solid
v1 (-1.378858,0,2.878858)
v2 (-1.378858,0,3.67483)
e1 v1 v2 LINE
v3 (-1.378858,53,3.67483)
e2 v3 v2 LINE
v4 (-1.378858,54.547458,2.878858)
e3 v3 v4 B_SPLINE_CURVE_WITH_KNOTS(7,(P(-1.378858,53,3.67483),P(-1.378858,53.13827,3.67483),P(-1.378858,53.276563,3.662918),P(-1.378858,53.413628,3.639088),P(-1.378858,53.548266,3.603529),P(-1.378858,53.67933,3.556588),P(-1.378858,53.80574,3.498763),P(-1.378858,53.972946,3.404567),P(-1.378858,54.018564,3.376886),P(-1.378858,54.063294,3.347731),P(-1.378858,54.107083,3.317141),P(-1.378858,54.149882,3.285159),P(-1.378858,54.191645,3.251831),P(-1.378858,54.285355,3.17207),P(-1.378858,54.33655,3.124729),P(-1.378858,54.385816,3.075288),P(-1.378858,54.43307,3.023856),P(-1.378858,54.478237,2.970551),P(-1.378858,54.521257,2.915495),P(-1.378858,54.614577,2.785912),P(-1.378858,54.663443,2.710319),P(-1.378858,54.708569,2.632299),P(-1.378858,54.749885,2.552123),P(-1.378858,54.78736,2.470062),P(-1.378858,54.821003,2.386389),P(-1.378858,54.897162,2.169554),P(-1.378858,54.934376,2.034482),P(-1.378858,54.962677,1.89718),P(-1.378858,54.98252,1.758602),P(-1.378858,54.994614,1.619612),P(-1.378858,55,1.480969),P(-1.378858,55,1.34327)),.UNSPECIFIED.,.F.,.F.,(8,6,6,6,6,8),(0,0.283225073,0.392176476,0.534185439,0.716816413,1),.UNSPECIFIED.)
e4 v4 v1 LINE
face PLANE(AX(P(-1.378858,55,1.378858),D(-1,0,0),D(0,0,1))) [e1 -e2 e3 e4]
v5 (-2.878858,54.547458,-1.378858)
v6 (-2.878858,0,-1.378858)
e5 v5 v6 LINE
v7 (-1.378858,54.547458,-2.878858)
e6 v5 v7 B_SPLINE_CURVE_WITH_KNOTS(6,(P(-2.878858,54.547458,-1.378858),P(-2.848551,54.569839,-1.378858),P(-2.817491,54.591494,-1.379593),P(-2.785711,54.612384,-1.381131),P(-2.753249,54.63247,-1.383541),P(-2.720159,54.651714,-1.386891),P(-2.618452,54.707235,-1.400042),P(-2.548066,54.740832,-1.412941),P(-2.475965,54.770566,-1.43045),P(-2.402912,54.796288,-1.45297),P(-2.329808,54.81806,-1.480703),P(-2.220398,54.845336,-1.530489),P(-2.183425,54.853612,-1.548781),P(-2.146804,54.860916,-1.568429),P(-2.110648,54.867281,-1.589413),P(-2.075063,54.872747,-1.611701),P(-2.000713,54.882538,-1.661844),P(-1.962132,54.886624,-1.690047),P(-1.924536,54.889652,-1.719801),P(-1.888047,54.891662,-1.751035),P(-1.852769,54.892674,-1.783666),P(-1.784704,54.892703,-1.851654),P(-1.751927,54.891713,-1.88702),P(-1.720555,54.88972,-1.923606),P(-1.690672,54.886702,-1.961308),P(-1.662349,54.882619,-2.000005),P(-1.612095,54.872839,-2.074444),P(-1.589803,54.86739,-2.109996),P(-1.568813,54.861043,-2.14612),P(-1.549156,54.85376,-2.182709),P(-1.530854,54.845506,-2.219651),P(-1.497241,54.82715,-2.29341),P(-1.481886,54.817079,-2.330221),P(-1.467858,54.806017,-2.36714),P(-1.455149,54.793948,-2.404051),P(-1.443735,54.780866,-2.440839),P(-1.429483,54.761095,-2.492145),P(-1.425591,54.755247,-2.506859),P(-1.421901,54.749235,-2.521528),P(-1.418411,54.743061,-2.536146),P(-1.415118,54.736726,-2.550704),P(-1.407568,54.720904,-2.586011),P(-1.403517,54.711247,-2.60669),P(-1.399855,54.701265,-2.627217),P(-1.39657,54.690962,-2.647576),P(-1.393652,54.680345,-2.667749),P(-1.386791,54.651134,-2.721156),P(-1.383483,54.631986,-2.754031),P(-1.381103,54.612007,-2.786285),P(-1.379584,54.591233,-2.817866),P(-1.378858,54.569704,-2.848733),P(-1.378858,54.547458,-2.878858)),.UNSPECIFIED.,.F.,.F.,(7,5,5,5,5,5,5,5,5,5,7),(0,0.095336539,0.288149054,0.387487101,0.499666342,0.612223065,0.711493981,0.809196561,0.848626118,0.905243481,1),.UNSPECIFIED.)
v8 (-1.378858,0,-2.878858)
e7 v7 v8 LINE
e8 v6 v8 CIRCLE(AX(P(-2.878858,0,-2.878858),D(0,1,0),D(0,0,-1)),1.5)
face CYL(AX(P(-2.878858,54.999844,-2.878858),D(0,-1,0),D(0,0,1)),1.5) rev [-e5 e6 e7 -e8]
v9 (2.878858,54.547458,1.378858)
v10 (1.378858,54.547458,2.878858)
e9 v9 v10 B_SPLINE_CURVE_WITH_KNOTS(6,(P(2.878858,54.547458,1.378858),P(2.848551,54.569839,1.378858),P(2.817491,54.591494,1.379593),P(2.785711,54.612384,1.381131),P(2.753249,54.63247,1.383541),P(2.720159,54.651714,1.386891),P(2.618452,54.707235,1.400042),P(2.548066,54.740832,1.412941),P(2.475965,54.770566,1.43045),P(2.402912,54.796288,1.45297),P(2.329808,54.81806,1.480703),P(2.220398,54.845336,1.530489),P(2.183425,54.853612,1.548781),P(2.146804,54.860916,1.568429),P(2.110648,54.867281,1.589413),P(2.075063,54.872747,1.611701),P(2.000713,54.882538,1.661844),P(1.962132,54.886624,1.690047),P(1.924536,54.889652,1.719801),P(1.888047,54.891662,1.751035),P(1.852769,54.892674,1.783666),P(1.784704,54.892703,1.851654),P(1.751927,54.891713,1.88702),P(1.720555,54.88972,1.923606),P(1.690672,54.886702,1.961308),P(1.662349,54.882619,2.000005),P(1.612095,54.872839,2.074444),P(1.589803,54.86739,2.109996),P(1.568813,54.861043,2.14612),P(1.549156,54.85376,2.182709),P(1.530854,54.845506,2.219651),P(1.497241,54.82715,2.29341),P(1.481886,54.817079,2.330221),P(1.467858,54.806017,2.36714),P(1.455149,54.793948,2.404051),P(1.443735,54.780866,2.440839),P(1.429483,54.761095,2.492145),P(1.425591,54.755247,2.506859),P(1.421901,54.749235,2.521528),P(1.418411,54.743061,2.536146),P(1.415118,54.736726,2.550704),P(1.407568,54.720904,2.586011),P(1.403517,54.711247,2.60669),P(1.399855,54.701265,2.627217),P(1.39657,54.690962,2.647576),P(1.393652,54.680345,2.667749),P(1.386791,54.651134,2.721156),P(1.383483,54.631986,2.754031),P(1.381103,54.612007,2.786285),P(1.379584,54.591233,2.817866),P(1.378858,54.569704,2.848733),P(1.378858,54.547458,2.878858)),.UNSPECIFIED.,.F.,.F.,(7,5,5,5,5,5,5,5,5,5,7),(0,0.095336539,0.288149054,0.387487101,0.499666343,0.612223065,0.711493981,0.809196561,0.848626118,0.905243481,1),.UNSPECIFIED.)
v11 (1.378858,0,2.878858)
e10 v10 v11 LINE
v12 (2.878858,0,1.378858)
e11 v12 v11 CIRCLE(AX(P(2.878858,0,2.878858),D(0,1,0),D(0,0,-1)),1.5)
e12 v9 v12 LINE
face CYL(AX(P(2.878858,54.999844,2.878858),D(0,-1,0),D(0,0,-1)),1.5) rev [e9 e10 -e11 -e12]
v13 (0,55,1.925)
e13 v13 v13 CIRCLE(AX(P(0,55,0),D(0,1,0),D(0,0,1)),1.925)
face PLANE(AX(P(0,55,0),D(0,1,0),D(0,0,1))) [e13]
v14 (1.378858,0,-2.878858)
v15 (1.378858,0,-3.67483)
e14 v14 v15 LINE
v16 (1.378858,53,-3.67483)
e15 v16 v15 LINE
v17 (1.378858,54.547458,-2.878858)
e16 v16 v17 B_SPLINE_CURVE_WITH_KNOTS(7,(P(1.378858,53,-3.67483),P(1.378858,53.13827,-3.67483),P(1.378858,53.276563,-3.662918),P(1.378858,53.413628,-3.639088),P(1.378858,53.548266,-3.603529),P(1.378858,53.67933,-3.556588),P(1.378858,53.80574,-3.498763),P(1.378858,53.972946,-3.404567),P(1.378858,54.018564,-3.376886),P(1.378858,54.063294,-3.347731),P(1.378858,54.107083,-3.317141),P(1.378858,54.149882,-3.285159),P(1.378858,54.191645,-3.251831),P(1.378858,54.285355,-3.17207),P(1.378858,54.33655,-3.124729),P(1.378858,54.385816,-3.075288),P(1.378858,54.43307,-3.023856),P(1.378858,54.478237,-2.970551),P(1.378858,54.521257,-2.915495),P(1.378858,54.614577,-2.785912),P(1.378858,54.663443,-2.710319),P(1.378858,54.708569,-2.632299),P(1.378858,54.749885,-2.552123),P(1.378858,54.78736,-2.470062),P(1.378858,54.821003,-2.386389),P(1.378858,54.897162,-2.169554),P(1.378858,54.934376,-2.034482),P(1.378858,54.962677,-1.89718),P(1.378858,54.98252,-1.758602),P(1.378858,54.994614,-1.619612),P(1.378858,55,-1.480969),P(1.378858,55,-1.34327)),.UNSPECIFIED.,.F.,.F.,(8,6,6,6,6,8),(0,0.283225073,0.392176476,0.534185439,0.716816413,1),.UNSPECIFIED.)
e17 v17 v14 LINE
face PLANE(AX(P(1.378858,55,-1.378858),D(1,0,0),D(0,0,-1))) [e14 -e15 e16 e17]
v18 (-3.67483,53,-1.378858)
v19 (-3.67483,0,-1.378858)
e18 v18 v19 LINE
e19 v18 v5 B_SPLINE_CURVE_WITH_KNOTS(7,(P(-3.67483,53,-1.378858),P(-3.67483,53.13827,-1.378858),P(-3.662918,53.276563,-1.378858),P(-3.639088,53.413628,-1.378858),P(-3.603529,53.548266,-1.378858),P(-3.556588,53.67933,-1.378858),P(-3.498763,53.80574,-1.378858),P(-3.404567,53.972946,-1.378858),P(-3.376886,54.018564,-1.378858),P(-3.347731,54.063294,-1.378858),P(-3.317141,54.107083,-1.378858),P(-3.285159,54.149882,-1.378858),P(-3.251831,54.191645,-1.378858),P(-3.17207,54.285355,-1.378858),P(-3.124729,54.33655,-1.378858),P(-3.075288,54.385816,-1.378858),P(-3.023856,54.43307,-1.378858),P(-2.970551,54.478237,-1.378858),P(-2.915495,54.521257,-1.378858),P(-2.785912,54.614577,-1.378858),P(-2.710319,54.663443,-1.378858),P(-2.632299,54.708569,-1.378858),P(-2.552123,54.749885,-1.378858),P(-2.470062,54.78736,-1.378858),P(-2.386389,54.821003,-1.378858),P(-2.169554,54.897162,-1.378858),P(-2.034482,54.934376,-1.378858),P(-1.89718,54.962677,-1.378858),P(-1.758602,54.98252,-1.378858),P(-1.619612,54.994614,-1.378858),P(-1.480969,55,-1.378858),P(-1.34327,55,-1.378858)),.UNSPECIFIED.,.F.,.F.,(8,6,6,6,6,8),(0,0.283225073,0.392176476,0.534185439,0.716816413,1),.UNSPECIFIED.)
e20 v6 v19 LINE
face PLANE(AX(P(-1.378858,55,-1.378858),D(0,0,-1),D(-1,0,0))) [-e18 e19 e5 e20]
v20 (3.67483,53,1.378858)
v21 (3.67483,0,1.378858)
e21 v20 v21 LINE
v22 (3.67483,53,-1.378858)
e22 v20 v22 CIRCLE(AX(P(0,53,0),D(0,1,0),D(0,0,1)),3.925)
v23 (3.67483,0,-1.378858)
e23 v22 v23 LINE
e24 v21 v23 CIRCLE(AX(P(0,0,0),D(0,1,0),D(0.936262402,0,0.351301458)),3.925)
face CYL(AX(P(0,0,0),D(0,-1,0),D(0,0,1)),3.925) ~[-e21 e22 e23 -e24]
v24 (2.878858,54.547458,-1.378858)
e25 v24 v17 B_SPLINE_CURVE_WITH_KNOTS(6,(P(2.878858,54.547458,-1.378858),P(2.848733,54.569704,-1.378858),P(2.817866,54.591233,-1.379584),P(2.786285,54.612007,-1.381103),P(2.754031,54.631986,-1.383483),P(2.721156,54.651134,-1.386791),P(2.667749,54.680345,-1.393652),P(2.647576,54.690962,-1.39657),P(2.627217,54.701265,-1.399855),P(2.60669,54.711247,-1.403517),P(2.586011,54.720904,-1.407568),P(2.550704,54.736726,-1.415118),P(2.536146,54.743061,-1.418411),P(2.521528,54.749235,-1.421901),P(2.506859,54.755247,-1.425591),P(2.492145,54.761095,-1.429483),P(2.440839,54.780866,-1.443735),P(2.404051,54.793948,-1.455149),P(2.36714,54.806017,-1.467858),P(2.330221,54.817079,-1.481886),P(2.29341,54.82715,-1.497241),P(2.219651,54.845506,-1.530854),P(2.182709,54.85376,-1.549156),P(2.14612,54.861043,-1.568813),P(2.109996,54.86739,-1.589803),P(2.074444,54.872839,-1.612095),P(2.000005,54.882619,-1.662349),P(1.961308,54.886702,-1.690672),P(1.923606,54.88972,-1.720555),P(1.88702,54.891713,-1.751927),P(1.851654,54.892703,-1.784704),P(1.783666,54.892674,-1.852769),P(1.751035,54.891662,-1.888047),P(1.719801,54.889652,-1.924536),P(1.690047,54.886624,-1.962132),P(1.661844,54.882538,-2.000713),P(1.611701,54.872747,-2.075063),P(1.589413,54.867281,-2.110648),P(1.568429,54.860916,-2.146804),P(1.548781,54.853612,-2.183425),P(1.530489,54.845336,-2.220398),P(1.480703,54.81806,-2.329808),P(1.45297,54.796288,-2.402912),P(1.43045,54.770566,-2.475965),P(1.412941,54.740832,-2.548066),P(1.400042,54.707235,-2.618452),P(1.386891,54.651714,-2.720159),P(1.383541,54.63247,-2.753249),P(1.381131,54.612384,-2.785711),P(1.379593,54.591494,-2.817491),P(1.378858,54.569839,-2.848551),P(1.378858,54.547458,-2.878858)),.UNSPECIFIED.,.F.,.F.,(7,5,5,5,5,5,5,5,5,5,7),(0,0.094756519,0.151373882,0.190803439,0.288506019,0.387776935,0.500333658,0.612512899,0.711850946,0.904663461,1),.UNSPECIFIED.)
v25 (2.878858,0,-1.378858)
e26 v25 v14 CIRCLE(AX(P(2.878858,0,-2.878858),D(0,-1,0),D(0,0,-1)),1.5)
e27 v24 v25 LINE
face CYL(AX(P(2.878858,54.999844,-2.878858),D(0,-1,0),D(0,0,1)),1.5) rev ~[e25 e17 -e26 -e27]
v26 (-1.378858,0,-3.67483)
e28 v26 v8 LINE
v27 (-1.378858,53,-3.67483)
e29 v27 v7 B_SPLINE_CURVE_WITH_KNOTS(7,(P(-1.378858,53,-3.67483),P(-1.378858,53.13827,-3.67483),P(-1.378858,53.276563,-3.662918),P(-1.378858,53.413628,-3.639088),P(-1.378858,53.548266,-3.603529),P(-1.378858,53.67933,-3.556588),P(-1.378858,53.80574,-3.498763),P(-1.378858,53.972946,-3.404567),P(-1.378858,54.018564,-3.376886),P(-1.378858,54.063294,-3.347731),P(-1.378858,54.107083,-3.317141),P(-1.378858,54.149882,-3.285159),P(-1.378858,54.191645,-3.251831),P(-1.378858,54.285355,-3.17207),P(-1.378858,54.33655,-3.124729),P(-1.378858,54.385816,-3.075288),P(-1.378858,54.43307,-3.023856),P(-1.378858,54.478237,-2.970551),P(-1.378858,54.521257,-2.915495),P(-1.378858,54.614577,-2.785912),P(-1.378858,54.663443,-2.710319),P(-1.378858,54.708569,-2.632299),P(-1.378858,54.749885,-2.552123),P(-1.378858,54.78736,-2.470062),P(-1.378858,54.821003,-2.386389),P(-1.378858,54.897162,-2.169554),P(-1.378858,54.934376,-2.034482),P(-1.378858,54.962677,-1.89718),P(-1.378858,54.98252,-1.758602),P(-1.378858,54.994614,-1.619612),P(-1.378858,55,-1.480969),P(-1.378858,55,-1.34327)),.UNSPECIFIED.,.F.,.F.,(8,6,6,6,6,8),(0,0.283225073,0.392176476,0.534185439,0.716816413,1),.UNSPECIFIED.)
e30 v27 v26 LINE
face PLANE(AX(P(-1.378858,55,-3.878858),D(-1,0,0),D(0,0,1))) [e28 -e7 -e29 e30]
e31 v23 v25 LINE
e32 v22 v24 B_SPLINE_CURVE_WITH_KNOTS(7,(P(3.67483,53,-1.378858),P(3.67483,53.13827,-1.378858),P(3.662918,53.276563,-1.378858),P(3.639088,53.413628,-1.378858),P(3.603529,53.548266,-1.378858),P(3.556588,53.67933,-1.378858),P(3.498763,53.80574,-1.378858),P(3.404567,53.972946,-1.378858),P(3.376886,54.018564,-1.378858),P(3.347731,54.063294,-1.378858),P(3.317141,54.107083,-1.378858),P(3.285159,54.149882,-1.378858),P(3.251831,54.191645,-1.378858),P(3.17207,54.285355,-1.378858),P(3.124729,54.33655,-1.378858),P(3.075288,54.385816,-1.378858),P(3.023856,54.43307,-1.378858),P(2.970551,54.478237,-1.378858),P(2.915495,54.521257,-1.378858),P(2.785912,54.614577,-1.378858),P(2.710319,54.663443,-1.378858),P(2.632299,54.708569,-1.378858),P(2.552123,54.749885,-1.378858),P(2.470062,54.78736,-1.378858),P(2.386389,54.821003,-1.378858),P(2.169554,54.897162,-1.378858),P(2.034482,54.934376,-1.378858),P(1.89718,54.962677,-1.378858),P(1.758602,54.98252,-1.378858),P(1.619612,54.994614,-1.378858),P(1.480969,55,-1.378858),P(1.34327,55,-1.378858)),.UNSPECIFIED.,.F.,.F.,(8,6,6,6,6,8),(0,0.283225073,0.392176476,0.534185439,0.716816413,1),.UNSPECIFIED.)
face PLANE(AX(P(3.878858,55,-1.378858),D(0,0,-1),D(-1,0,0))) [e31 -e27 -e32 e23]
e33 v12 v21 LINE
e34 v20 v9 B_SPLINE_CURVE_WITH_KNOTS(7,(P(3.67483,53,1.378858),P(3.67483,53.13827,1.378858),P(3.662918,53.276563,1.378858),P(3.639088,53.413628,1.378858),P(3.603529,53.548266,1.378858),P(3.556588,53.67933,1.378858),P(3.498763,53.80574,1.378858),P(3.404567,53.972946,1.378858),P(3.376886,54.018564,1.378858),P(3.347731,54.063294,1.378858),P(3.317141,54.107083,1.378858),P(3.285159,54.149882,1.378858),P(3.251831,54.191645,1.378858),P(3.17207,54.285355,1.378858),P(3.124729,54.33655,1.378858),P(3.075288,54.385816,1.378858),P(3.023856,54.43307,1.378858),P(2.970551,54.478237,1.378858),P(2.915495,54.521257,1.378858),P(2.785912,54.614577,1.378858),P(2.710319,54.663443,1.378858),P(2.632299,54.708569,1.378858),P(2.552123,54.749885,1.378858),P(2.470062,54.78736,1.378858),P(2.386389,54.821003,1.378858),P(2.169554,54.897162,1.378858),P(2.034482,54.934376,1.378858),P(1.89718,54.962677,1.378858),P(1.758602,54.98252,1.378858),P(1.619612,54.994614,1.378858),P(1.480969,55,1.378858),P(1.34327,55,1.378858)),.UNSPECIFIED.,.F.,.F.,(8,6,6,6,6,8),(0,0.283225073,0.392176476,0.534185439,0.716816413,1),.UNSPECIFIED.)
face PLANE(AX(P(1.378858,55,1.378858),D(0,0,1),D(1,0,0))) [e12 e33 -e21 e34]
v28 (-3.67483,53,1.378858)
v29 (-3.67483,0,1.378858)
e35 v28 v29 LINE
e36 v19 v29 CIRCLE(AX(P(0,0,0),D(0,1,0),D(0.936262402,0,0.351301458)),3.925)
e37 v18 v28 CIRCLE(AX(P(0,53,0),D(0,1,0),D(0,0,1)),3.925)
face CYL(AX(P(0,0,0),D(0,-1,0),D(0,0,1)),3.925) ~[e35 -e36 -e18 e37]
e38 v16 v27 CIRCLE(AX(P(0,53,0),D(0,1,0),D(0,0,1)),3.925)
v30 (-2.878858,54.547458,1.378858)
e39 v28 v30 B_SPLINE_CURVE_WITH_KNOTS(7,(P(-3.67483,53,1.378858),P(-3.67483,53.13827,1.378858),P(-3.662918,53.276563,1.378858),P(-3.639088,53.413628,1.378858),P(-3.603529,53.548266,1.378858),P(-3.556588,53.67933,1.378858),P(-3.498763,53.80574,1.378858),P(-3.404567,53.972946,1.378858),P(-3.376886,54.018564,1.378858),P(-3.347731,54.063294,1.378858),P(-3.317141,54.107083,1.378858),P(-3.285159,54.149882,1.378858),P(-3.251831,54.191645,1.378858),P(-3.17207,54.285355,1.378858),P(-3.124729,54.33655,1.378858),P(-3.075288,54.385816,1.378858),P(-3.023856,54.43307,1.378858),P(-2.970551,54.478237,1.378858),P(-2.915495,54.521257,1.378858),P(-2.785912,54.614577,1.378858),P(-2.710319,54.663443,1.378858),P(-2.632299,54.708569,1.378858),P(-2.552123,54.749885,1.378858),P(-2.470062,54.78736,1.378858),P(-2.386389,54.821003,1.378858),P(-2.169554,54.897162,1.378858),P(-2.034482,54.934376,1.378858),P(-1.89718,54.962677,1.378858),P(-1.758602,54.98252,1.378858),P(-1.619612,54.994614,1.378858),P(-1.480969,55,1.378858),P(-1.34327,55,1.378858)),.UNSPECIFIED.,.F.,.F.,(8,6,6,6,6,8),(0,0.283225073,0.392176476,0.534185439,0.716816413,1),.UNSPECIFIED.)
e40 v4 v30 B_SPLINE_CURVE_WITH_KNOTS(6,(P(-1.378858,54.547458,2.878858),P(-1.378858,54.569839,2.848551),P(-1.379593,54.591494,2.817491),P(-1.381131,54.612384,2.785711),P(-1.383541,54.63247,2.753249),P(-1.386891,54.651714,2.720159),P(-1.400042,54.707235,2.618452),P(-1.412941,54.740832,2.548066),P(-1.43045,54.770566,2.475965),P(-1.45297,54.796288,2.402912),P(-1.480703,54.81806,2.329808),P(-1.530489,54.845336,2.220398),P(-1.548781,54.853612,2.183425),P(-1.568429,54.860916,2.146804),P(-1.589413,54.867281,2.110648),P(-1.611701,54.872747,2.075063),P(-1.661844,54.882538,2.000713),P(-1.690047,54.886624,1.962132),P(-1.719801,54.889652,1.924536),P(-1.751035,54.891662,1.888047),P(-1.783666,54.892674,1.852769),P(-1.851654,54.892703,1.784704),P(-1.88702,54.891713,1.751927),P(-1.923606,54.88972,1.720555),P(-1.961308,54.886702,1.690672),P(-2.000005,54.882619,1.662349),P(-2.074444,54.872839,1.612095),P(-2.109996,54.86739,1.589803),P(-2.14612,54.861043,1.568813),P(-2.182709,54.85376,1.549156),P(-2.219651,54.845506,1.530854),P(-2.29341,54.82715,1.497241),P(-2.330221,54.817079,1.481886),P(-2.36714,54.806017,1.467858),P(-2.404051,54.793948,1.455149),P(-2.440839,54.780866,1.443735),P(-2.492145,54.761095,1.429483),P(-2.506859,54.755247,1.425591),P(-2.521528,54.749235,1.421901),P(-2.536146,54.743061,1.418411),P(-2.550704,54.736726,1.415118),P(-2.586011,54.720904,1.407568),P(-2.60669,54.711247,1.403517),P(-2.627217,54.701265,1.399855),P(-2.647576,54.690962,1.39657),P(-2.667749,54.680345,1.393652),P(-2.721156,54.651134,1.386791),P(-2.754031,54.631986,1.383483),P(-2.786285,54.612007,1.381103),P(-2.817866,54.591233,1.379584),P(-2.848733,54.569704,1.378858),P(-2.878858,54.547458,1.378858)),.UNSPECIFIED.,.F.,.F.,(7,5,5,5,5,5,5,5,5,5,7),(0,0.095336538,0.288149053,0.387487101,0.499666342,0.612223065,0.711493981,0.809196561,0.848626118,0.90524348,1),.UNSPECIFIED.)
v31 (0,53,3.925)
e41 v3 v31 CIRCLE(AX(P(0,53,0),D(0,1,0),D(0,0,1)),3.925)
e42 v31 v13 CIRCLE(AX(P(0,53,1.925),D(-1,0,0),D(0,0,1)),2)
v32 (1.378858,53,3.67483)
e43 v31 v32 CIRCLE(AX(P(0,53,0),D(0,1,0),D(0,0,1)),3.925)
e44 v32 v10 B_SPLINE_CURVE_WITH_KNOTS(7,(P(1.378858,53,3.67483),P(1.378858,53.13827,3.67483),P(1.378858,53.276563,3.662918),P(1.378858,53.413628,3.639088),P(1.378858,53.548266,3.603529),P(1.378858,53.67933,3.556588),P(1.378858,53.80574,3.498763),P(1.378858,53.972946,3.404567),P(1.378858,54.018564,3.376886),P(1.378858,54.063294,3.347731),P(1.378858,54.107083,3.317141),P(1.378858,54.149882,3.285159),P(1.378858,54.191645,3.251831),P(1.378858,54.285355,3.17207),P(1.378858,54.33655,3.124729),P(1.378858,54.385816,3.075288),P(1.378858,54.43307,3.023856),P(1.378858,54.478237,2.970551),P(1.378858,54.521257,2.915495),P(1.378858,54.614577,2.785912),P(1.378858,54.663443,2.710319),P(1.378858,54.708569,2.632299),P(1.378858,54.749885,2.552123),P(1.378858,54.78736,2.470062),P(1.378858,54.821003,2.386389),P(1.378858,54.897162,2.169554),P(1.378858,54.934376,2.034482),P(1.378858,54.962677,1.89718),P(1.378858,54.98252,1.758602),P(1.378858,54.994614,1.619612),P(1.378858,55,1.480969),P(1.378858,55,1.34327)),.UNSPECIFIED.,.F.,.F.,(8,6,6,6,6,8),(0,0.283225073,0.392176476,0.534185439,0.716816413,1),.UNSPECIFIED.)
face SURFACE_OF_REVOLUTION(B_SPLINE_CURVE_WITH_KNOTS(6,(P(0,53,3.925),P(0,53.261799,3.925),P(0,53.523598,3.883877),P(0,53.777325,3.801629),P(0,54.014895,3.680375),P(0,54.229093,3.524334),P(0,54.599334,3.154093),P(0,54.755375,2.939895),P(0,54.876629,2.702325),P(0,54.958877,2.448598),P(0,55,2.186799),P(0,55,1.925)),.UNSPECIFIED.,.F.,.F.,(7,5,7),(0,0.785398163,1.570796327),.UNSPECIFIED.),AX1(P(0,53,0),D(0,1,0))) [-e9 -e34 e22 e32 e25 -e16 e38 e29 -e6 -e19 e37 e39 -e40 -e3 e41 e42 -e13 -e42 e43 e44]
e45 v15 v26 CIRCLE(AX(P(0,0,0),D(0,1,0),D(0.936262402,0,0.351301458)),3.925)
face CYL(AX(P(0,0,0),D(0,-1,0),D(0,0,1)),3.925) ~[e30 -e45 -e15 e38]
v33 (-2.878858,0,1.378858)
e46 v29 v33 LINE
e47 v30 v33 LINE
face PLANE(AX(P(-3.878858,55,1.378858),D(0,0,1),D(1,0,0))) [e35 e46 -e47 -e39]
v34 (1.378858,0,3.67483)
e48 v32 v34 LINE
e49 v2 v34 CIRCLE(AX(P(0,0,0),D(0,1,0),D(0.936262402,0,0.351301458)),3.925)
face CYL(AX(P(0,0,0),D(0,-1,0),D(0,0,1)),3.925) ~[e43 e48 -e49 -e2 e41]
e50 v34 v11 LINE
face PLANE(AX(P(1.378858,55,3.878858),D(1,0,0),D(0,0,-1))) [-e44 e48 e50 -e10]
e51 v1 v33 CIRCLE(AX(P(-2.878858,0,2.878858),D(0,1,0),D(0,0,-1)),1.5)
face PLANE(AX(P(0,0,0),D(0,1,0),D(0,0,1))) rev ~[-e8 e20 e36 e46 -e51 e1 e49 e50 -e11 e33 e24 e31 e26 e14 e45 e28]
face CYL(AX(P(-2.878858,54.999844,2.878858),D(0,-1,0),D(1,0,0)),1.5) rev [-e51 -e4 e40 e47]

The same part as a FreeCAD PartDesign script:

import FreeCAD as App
import Part
import Sketcher


def edges_at(feature, points):
    """Names of the edges that pass closest to the given points."""
    edges = feature.Shape.Edges
    near = lambda p: min(range(len(edges)), key=lambda i: edges[i].distToShape(Part.Vertex(*p))[0])
    return sorted({f"Edge{near(p) + 1}" for p in points})

doc = App.newDocument("Part")
params = doc.addObject("Spreadsheet::Sheet", "Params")
for row, (alias, value) in enumerate([
    ("sketch1_diameter", "7.85 mm"),
    ("pad1_length", "55 mm"),
    ("fillet_radius", "2 mm"),
    ("sketch2_width", "2.5 mm"),
    ("fillet2_radius", "1.5 mm"),
], start=1):
    params.set(f"A{row}", alias)
    params.set(f"B{row}", "=" + value)
    params.setAlias(f"B{row}", alias)

body = doc.addObject("PartDesign::Body", "Body")

# Sketch on XZ plane
sketch1 = body.newObject("Sketcher::SketchObject", "Sketch")
sketch1.AttachmentSupport = (doc.getObject("XZ_Plane"), [""])
sketch1.MapMode = "FlatFace"
sketch1.addGeometry(Part.Circle(App.Vector(0, 0, 0), App.Vector(0, 0, 1), 3.9), False)
sketch1.addConstraint(Sketcher.Constraint("Coincident", 0, 3, -1, 1))
sketch1.addConstraint(Sketcher.Constraint("Diameter", 0, 7.85))
sketch1.setExpression("Constraints[1]", "Params.sketch1_diameter")
pad1 = body.newObject("PartDesign::Pad", "Pad")
pad1.Profile = sketch1
pad1.setExpression("Length", "Params.pad1_length")
pad1.Reversed = True
doc.recompute()

fillet = body.newObject("PartDesign::Fillet", "Fillet")
fillet.Base = (pad1, edges_at(pad1, [(0, 55, -3.925)]))
fillet.setExpression("Radius", "Params.fillet_radius")

# Sketch on XZ plane
sketch2 = body.newObject("Sketcher::SketchObject", "Sketch001")
sketch2.AttachmentSupport = (doc.getObject("XZ_Plane"), [""])
sketch2.MapMode = "FlatFace"
sketch2.AttachmentOffset = App.Placement(App.Vector(0, 0, -55), App.Rotation())
sketch2.addGeometry(Part.LineSegment(App.Vector(1.4, 1.4, 0), App.Vector(1.4, 3.9, 0)), False)
sketch2.addGeometry(Part.LineSegment(App.Vector(1.4, 3.9, 0), App.Vector(3.9, 3.9, 0)), False)
sketch2.addGeometry(Part.LineSegment(App.Vector(3.9, 3.9, 0), App.Vector(3.9, 1.4, 0)), False)
sketch2.addGeometry(Part.LineSegment(App.Vector(3.9, 1.4, 0), App.Vector(1.4, 1.4, 0)), False)
sketch2.addConstraint(Sketcher.Constraint("Coincident", 0, 2, 1, 1))
sketch2.addConstraint(Sketcher.Constraint("Coincident", 1, 2, 2, 1))
sketch2.addConstraint(Sketcher.Constraint("Coincident", 2, 2, 3, 1))
sketch2.addConstraint(Sketcher.Constraint("Coincident", 3, 2, 0, 1))
sketch2.addConstraint(Sketcher.Constraint("Vertical", 0))
sketch2.addConstraint(Sketcher.Constraint("Horizontal", 1))
sketch2.addConstraint(Sketcher.Constraint("Vertical", 2))
sketch2.addConstraint(Sketcher.Constraint("Horizontal", 3))
sketch2.addConstraint(Sketcher.Constraint("Equal", 3, 0))
sketch2.addConstraint(Sketcher.Constraint("DistanceX", 1, 1, 1, 2, 2.5))
sketch2.addConstraint(Sketcher.Constraint("DistanceX", -1, 1, 0, 2, 1.378858))
sketch2.addConstraint(Sketcher.Constraint("DistanceY", -1, 1, 0, 2, 3.878858))
sketch2.setExpression("Constraints[9]", "Params.sketch2_width")
pocket1 = body.newObject("PartDesign::Pocket", "Pocket")
pocket1.Profile = sketch2
pocket1.Type = "ThroughAll"
pocket1.Reversed = True
doc.recompute()

polarpattern = body.newObject("PartDesign::PolarPattern", "PolarPattern")
polarpattern.Originals = [pocket1]
polarpattern.Axis = (doc.getObject("Y_Axis"), [""])
polarpattern.Angle = 360
polarpattern.Occurrences = 4
body.Tip = polarpattern
doc.recompute()

fillet2 = body.newObject("PartDesign::Fillet", "Fillet001")
fillet2.Base = (polarpattern, edges_at(polarpattern, [
    (1.379, 27.5, -1.379),
    (-1.379, 27.5, -1.379),
    (-1.379, 27.5, 1.379),
    (1.379, 27.5, 1.379),
]))
fillet2.setExpression("Radius", "Params.fillet2_radius")

doc.recompute()
